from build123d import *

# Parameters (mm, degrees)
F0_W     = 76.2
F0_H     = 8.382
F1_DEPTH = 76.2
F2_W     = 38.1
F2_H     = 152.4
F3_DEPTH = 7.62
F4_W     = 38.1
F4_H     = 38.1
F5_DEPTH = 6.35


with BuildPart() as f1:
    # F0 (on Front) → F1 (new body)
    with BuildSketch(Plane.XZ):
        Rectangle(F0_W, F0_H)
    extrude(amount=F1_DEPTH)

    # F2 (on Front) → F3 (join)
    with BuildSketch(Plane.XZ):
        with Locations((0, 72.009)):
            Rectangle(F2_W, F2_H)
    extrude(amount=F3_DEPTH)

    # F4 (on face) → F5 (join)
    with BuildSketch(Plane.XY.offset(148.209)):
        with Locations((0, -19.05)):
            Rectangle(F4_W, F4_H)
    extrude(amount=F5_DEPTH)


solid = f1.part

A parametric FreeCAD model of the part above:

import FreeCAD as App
import Part
import Sketcher

V = App.Vector
Q = App.Units.Quantity

doc = App.newDocument("Part")
body = doc.addObject("PartDesign::Body", "Body")

sketch1 = body.newObject("Sketcher::SketchObject", "Sketch")
sketch1.AttachmentSupport = (doc.getObject("XZ_Plane"), [""])
sketch1.MapMode = "FlatFace"
sketch1.addGeometry([
    Part.LineSegment(V(-38, 4, 0), V(-38, -4, 0)),
    Part.LineSegment(V(-38, -4, 0), V(38, -4, 0)),
    Part.LineSegment(V(38, -4, 0), V(38, 4, 0)),
    Part.LineSegment(V(38, 4, 0), V(-38, 4, 0)),
], False)
sketch1.addConstraint([
    Sketcher.Constraint("Coincident", 0, 2, 1, 1),
    Sketcher.Constraint("Coincident", 1, 2, 2, 1),
    Sketcher.Constraint("Coincident", 2, 2, 3, 1),
    Sketcher.Constraint("Coincident", 3, 2, 0, 1),
    Sketcher.Constraint("Vertical", 0),
    Sketcher.Constraint("Horizontal", 1),
    Sketcher.Constraint("Vertical", 2),
    Sketcher.Constraint("Horizontal", 3),
    Sketcher.Constraint("Symmetric", 0, 2, 2, 2, -1, 1),
    Sketcher.Constraint("DistanceX", 1, 1, 1, 2, Q("3 in")),
    Sketcher.Constraint("DistanceY", 0, 2, 0, 1, Q("0.33 in")),
])
pad1 = body.newObject("PartDesign::Pad", "Pad")
pad1.Profile = sketch1
pad1.Length = Q("3 in")

sketch2 = body.newObject("Sketcher::SketchObject", "Sketch001")
sketch2.AttachmentSupport = (doc.getObject("XZ_Plane"), [""])
sketch2.MapMode = "FlatFace"
sketch2.addGeometry([
    Part.LineSegment(V(-19, 148, 0), V(-19, -4, 0)),
    Part.LineSegment(V(-19, -4, 0), V(19, -4, 0)),
    Part.LineSegment(V(19, -4, 0), V(19, 148, 0)),
    Part.LineSegment(V(19, 148, 0), V(-19, 148, 0)),
], False)
sketch2.addConstraint([
    Sketcher.Constraint("Coincident", 0, 2, 1, 1),
    Sketcher.Constraint("Coincident", 1, 2, 2, 1),
    Sketcher.Constraint("Coincident", 2, 2, 3, 1),
    Sketcher.Constraint("Coincident", 3, 2, 0, 1),
    Sketcher.Constraint("Vertical", 0),
    Sketcher.Constraint("Horizontal", 1),
    Sketcher.Constraint("Vertical", 2),
    Sketcher.Constraint("Horizontal", 3),
    Sketcher.Constraint("DistanceY", 0, 2, 0, 1, Q("6 in")),
    Sketcher.Constraint("DistanceX", 1, 1, 1, 2, Q("1.5 in")),
    Sketcher.Constraint("DistanceX", 0, 2, -1, 1, Q("0.75 in")),
    Sketcher.Constraint("DistanceY", 0, 2, -1, 1, Q("0.165 in")),
])
pad2 = body.newObject("PartDesign::Pad", "Pad001")
pad2.Profile = sketch2
pad2.Length = Q("0.3 in")

sketch3 = body.newObject("Sketcher::SketchObject", "Sketch002")
sketch3.AttachmentSupport = (doc.getObject("XY_Plane"), [""])
sketch3.MapMode = "FlatFace"
sketch3.AttachmentOffset = App.Placement(V(0, 0, 5.835 * 25.4), App.Rotation())
sketch3.addGeometry([
    Part.LineSegment(V(-19, 0, 0), V(-19, -38, 0)),
    Part.LineSegment(V(-19, -38, 0), V(19, -38, 0)),
    Part.LineSegment(V(19, -38, 0), V(19, 0, 0)),
    Part.LineSegment(V(19, 0, 0), V(-19, 0, 0)),
], False)
sketch3.addConstraint([
    Sketcher.Constraint("Coincident", 0, 2, 1, 1),
    Sketcher.Constraint("Coincident", 1, 2, 2, 1),
    Sketcher.Constraint("Coincident", 2, 2, 3, 1),
    Sketcher.Constraint("Coincident", 3, 2, 0, 1),
    Sketcher.Constraint("Vertical", 0),
    Sketcher.Constraint("Horizontal", 1),
    Sketcher.Constraint("Vertical", 2),
    Sketcher.Constraint("Horizontal", 3),
    Sketcher.Constraint("Symmetric", 2, 2, 3, 2, -1, 1),
    Sketcher.Constraint("Equal", 3, 0),
    Sketcher.Constraint("DistanceX", 1, 1, 1, 2, Q("1.5 in")),
])
pad3 = body.newObject("PartDesign::Pad", "Pad002")
pad3.Profile = sketch3
pad3.Length = Q("0.25 in")

doc.recompute()
